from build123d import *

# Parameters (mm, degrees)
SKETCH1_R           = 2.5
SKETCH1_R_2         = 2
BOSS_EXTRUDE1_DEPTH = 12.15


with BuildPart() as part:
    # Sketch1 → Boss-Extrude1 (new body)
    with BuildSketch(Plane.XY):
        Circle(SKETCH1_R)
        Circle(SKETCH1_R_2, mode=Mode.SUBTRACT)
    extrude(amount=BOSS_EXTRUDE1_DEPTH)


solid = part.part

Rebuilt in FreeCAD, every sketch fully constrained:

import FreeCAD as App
import Part
import Sketcher
from FreeCAD import Vector

doc = App.newDocument("Part")
body = doc.addObject("PartDesign::Body", "Body")

# Sketch on XY plane
sketch1 = body.newObject("Sketcher::SketchObject", "Sketch")
sketch1.AttachmentSupport = (doc.getObject("XY_Plane"), [""])
sketch1.MapMode = "FlatFace"
sketch1.addGeometry([
    Part.Circle(Vector(0, 0, 0), Vector(0, 0, 1), 2.5),
    Part.Circle(Vector(0, 0, 0), Vector(0, 0, 1), 2),
], False)
sketch1.addConstraint([
    Sketcher.Constraint("Coincident", 0, 3, -1, 1),
    Sketcher.Constraint("Coincident", 1, 3, -1, 1),
    Sketcher.Constraint("Diameter", 0, 5.0),
    Sketcher.Constraint("Diameter", 1, 4.0),
])
pad1 = body.newObject("PartDesign::Pad", "Pad")
pad1.Profile = sketch1
pad1.Length = 12.15

doc.recompute()
